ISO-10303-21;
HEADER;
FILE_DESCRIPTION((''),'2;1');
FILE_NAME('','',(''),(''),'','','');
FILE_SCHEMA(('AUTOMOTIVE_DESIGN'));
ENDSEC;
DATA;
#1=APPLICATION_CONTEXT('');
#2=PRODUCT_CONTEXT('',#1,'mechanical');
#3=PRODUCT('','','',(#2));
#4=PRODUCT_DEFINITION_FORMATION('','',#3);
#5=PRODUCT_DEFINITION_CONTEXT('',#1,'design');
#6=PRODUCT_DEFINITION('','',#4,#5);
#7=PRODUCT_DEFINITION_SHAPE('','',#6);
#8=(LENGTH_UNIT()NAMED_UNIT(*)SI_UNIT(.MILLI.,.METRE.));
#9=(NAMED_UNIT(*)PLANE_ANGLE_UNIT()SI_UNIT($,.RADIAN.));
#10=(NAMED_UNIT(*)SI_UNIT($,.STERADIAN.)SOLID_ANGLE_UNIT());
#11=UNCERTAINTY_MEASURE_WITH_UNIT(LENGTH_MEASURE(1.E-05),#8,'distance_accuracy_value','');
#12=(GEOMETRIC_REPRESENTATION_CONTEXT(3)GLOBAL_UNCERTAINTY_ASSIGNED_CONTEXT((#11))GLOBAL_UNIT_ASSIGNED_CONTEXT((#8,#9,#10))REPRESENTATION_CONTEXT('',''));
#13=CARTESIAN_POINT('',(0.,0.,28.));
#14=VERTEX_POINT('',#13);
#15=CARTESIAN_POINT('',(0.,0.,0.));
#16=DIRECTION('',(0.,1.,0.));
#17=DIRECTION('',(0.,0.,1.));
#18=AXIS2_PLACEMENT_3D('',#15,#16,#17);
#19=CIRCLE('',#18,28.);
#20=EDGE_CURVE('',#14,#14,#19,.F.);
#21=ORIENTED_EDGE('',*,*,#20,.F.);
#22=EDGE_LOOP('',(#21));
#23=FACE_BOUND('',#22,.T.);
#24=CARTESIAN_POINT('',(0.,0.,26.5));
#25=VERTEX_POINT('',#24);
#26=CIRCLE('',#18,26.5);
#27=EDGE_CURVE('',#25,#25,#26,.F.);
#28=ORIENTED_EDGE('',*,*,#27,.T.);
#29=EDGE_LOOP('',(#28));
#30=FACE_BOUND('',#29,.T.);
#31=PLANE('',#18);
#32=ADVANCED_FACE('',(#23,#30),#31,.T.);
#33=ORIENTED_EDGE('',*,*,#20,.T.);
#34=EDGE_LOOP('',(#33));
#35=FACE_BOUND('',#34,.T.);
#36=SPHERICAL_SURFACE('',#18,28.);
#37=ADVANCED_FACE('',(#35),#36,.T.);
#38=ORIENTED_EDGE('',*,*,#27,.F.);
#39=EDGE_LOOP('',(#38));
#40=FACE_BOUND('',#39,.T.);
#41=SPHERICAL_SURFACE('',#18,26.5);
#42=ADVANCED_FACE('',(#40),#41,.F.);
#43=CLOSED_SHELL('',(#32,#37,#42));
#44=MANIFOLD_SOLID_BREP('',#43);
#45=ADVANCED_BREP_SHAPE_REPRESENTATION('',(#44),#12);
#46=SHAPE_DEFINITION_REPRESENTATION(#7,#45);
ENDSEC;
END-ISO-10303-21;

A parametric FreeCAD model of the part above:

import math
import FreeCAD as App
import Part
import Sketcher

V = App.Vector
Q = App.Units.Quantity


def edges_at(feature, points):
    """Names of the edges that pass closest to the given points."""
    edges = feature.Shape.Edges
    near = lambda p: min(range(len(edges)), key=lambda i: edges[i].distToShape(Part.Vertex(*p))[0])
    return sorted({f"Edge{near(p) + 1}" for p in points})


def add_polygon(sketch, points):
    """Adds a closed chain of lines whose ends are joined by coincident constraints."""
    first, n = sketch.GeometryCount, len(points)
    for a, b in zip(points, points[1:] + points[:1]):
        sketch.addGeometry(Part.LineSegment(App.Vector(*a, 0), App.Vector(*b, 0)), False)
    for i in range(n):
        sketch.addConstraint(Sketcher.Constraint("Coincident", first + i, 2, first + (i + 1) % n, 1))

doc = App.newDocument("Part")
body = doc.addObject("PartDesign::Body", "Body")

# Sketch on YZ plane
sketch1 = doc.addObject("Sketcher::SketchObject", "Sketch")
body.addObject(sketch1)
sketch1.AttachmentSupport = (doc.YZ_Plane, [""])
sketch1.MapMode = "FlatFace"
sketch1.addGeometry(Part.LineSegment(V(25, 0.5, 0), V(28, 0.5, 0)), False)
sketch1.addGeometry(Part.ArcOfCircle(Part.Circle(V(0, 0, 0), V(0, 0, 1), 28), math.radians(1), math.radians(180)), False)
sketch1.addGeometry(Part.LineSegment(V(-28, 0, 0), V(-26.5, 0, 0)), False)
sketch1.addGeometry(Part.ArcOfCircle(Part.Circle(V(0, 0, 0), V(0, 0, 1), 26.5), math.radians(50), math.radians(180)), False)
sketch1.addGeometry(Part.LineSegment(V(17, 20.3, 0), V(16.1, 19.2, 0)), False)
sketch1.addGeometry(Part.ArcOfCircle(Part.Circle(V(0, 0, 0), V(0, 0, 1), 25), math.radians(1), math.radians(50)), False)
sketch1.addConstraint(Sketcher.Constraint("Coincident", 0, 2, 1, 1))
sketch1.addConstraint(Sketcher.Constraint("Coincident", 1, 2, 2, 1))
sketch1.addConstraint(Sketcher.Constraint("Coincident", 2, 2, 3, 2))
sketch1.addConstraint(Sketcher.Constraint("Coincident", 3, 1, 4, 1))
sketch1.addConstraint(Sketcher.Constraint("Coincident", 4, 2, 5, 2))
sketch1.addConstraint(Sketcher.Constraint("Coincident", 5, 1, 0, 1))
sketch1.addConstraint(Sketcher.Constraint("Horizontal", 0))
sketch1.addConstraint(Sketcher.Constraint("Horizontal", 2))
sketch1.addConstraint(Sketcher.Constraint("Coincident", 1, 3, -1, 1))
sketch1.addConstraint(Sketcher.Constraint("Coincident", 3, 3, -1, 1))
sketch1.addConstraint(Sketcher.Constraint("Coincident", 5, 3, -1, 1))
sketch1.addConstraint(Sketcher.Constraint("PointOnObject", 1, 2, -1))
sketch1.addConstraint(Sketcher.Constraint("Radius", 1, 28.0))
sketch1.addConstraint(Sketcher.Constraint("Radius", 5, 25.0))
sketch1.addConstraint(Sketcher.Constraint("Radius", 3, 26.5))
sketch1.addConstraint(Sketcher.Constraint("Angle", 4, Q("-130 deg")))
sketch1.addConstraint(Sketcher.Constraint("DistanceY", -1, 1, 0, 2, 0.5))
sketch1.addConstraint(Sketcher.Constraint("DistanceX", -1, 1, 3, 1, 17.033872))
revolution = doc.addObject("PartDesign::Revolution", "Revolution")
body.addObject(revolution)
revolution.Profile = sketch1
revolution.ReferenceAxis = (sketch1, ["H_Axis"])
revolution.Angle = 360

# Sketch on YZ plane
sketch2 = doc.addObject("Sketcher::SketchObject", "Sketch001")
body.addObject(sketch2)
sketch2.AttachmentSupport = (doc.YZ_Plane, [""])
sketch2.MapMode = "FlatFace"
add_polygon(sketch2, [(30, 10), (16, 10), (16, 0), (30, 0)])  # lines 0-3
sketch2.addConstraint(Sketcher.Constraint("Horizontal", 0))
sketch2.addConstraint(Sketcher.Constraint("Vertical", 1))
sketch2.addConstraint(Sketcher.Constraint("Horizontal", 2))
sketch2.addConstraint(Sketcher.Constraint("Vertical", 3))
sketch2.addConstraint(Sketcher.Constraint("PointOnObject", 1, 2, -1))
sketch2.addConstraint(Sketcher.Constraint("DistanceX", 0, 2, 0, 1, 14.0))
sketch2.addConstraint(Sketcher.Constraint("DistanceY", 1, 2, 1, 1, 10.0))
sketch2.addConstraint(Sketcher.Constraint("DistanceX", -1, 1, 0, 2, 16.0))
groove = doc.addObject("PartDesign::Groove", "Groove")
body.addObject(groove)
groove.Profile = sketch2
groove.ReferenceAxis = (sketch2, ["H_Axis"])
groove.Angle = 360
doc.recompute()

fillet = doc.addObject("PartDesign::Fillet", "Fillet")
body.addObject(fillet)
fillet.Base = (groove, edges_at(groove, [(0, 22.913, -10), (0, 26.153, -10), (0, 16.07, -19.151)]))
fillet.Radius = 1

# Sketch on XZ plane
sketch3 = doc.addObject("Sketcher::SketchObject", "Sketch002")
body.addObject(sketch3)
sketch3.AttachmentSupport = (doc.XZ_Plane, [""])
sketch3.MapMode = "FlatFace"
sketch3.addGeometry(Part.Circle(V(0, 0, 0), V(0, 0, 1), 30), False)
sketch3.addConstraint(Sketcher.Constraint("Coincident", 0, 3, -1, 1))
sketch3.addConstraint(Sketcher.Constraint("Diameter", 0, 59.6913))
pocket1 = doc.addObject("PartDesign::Pocket", "Pocket")
body.addObject(pocket1)
pocket1.Profile = sketch3
pocket1.Length = 30

doc.recompute()
